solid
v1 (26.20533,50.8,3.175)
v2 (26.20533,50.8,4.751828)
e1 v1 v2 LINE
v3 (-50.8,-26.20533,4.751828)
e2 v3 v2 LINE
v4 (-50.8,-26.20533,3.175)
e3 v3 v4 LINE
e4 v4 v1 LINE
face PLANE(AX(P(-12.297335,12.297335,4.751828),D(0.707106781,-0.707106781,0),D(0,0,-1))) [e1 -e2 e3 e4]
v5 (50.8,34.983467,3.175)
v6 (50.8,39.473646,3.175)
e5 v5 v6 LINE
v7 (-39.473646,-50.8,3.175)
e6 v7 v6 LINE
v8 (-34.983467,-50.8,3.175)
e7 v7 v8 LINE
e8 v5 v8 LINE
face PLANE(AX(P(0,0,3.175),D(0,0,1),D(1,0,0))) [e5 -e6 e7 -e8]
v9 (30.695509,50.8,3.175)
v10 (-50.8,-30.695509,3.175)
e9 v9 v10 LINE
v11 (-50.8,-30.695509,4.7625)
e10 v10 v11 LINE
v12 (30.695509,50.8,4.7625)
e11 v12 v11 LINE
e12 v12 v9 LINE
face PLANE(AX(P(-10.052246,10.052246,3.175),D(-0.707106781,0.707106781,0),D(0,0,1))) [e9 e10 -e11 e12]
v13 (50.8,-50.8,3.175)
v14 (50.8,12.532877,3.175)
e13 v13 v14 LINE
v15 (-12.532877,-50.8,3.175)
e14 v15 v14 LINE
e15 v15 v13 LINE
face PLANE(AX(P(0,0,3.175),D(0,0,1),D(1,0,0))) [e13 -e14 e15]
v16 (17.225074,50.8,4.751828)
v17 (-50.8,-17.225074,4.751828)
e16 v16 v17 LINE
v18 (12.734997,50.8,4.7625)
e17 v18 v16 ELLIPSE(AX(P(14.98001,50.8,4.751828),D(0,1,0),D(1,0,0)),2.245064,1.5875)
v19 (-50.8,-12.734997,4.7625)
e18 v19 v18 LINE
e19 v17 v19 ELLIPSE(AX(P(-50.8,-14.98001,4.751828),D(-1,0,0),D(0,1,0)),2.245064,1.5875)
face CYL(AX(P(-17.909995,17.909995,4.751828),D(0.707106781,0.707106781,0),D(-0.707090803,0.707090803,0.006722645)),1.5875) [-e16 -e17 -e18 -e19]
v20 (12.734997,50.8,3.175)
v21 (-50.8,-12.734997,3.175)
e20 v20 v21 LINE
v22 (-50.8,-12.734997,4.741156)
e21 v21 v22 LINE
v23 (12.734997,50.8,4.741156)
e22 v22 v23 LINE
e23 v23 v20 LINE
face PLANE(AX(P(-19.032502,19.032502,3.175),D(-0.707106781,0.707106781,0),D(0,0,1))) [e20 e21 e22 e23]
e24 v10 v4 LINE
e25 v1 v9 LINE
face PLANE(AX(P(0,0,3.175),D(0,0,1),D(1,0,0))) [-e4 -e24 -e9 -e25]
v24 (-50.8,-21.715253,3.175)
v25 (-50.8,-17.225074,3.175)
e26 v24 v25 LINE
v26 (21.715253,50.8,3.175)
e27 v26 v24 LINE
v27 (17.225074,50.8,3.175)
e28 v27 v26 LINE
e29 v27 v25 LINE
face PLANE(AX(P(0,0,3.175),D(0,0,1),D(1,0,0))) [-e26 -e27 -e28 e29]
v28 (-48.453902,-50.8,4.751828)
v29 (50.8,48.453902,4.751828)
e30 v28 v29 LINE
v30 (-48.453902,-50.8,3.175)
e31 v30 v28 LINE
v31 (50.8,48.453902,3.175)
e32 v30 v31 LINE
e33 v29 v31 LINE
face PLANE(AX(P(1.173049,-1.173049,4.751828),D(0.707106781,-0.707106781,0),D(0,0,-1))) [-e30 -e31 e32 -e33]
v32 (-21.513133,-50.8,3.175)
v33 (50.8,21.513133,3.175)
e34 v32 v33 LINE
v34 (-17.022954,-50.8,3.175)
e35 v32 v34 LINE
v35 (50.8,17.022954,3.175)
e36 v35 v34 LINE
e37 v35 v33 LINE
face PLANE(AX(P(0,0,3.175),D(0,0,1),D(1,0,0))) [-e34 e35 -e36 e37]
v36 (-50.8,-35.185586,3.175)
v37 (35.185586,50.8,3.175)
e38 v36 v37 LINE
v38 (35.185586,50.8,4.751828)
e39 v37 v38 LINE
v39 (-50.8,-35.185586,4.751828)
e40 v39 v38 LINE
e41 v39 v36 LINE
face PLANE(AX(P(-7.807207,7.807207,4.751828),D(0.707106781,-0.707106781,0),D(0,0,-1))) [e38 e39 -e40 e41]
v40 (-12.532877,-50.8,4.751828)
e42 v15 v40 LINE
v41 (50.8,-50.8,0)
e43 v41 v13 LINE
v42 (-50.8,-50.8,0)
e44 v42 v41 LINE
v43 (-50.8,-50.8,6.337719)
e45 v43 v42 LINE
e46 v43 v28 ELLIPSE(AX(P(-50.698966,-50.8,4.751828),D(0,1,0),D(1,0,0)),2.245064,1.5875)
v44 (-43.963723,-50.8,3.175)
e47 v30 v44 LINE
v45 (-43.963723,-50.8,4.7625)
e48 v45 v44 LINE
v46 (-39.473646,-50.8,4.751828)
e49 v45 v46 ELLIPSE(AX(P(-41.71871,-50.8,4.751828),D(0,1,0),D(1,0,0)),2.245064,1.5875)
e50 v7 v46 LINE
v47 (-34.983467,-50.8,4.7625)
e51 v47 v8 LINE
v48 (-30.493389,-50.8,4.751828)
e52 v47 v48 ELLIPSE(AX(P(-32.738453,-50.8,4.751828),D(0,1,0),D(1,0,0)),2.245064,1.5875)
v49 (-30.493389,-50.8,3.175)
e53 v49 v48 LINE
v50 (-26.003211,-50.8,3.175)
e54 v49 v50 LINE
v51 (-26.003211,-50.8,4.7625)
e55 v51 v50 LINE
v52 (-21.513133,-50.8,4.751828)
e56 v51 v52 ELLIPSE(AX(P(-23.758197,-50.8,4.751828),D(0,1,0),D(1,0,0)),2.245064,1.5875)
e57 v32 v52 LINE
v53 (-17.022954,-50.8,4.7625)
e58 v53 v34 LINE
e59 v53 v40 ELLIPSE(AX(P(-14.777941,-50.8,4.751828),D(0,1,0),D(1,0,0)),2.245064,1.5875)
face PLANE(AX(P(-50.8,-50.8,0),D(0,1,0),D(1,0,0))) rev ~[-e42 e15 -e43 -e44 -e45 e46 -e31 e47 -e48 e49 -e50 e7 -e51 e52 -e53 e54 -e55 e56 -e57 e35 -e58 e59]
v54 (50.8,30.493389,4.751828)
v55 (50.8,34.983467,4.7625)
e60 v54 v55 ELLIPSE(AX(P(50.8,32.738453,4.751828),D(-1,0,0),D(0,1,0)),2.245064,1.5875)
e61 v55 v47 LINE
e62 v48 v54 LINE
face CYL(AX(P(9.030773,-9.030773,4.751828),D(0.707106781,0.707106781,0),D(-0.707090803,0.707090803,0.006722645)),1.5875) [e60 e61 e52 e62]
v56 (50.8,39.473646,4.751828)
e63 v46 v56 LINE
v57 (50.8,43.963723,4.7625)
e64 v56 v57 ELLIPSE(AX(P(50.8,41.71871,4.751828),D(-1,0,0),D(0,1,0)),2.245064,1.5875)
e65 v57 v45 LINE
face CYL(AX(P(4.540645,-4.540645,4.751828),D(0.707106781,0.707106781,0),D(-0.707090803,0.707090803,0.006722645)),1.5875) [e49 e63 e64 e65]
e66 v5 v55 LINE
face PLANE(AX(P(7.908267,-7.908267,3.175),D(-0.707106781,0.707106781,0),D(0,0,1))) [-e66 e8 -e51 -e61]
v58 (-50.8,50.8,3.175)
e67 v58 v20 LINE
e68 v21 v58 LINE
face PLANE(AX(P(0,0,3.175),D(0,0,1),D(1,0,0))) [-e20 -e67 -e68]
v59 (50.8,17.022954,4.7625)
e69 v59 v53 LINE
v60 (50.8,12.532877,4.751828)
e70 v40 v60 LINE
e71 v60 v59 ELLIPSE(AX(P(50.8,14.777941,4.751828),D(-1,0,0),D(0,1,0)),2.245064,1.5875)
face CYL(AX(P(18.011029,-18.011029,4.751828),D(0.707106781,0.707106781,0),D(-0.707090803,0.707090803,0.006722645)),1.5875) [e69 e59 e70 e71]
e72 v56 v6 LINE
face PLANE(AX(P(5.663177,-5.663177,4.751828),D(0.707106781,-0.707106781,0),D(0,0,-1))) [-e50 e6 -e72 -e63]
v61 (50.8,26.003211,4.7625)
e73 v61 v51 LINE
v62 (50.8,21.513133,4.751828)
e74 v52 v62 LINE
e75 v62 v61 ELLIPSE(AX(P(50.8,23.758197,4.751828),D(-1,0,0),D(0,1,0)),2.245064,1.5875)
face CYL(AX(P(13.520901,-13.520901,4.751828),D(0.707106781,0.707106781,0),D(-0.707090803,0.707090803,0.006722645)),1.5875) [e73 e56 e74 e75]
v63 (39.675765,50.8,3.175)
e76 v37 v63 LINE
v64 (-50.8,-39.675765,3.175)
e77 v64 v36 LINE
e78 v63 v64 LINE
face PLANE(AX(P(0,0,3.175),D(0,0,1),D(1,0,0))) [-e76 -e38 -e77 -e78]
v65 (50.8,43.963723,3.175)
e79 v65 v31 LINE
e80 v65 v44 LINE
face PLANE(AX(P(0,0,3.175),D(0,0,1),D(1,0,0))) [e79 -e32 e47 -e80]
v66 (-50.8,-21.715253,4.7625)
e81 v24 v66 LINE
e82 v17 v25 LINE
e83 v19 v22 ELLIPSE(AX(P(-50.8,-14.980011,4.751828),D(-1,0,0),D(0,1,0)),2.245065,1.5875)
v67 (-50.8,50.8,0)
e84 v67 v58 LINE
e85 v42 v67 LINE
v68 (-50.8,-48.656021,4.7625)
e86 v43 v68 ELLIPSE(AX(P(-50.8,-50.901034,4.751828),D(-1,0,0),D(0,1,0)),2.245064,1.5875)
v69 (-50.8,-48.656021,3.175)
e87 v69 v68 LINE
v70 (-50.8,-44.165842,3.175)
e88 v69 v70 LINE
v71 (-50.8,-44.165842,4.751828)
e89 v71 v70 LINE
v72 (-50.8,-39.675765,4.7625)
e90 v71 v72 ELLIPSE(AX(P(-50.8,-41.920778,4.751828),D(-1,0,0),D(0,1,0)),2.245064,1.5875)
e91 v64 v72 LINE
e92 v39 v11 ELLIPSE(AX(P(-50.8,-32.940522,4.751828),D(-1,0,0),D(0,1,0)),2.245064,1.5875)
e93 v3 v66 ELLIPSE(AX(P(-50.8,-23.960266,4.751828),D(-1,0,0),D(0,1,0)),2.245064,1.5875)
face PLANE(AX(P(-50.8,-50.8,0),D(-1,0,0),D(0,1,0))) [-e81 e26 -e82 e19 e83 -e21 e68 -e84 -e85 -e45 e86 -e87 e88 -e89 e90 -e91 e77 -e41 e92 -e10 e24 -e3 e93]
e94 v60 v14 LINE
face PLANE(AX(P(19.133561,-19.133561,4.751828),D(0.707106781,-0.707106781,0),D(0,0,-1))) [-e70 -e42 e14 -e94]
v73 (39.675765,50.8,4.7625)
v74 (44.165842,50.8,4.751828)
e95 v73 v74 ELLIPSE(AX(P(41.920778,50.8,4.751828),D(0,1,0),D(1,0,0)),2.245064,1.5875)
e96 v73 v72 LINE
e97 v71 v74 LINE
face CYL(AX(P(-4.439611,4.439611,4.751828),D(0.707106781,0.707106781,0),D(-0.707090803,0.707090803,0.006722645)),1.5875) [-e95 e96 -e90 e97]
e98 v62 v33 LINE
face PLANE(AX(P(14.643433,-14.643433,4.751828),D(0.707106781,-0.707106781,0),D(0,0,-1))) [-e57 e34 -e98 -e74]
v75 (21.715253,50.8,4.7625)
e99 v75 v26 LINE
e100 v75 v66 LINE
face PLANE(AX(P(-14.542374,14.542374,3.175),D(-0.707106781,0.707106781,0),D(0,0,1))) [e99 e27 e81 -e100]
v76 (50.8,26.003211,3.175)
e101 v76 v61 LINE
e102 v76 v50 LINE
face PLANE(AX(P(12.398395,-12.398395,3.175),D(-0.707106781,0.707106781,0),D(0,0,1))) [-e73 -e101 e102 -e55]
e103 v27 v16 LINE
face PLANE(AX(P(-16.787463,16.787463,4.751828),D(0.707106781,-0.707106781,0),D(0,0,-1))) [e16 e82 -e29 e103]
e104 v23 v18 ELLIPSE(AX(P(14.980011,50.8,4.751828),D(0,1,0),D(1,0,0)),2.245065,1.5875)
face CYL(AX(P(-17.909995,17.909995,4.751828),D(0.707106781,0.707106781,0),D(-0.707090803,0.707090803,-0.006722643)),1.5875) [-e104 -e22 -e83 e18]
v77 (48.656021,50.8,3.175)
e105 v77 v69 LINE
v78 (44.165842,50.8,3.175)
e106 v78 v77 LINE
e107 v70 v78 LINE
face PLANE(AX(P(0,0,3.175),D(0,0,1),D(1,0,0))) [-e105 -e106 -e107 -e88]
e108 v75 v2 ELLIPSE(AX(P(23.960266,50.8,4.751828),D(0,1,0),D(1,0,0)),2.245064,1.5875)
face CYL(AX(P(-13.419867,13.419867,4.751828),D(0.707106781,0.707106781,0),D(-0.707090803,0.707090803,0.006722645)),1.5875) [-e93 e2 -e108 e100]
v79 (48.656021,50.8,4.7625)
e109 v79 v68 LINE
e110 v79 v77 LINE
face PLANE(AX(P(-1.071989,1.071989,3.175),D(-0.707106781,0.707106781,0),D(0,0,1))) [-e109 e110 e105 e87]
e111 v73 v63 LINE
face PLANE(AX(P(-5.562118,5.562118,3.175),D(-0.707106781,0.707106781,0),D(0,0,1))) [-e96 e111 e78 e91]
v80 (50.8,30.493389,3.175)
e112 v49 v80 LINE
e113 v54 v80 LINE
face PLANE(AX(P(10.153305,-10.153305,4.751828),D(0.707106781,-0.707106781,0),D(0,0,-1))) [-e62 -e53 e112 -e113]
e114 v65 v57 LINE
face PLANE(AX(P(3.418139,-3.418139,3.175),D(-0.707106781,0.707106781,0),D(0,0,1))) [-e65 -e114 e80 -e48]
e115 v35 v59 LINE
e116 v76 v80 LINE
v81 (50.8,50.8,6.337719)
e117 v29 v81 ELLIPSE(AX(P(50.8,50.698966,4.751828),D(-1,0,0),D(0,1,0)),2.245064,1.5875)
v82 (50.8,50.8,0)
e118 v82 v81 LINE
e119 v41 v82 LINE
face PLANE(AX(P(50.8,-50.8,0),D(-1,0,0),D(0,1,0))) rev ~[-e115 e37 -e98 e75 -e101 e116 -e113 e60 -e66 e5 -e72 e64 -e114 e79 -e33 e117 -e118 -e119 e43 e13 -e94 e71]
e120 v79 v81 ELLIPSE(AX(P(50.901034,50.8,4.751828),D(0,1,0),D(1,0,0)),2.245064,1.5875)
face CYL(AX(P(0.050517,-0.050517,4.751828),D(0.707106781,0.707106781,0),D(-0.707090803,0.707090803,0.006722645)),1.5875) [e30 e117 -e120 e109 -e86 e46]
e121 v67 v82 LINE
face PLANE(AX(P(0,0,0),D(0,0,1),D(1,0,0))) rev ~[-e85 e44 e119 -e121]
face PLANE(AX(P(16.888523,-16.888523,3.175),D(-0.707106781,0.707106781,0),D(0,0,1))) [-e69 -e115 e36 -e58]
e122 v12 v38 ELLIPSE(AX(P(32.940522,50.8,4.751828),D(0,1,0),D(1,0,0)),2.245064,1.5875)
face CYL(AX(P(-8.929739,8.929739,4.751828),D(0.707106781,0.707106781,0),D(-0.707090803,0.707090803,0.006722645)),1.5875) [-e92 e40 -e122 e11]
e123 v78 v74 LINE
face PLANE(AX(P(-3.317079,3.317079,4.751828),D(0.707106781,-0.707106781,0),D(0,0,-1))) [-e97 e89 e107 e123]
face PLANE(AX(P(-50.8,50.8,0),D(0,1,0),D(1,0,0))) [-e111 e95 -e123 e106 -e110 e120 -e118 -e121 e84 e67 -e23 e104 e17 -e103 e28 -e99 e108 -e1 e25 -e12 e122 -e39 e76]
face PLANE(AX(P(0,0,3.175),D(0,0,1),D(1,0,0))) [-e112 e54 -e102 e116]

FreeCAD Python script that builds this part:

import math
import FreeCAD as App
import Part
import Sketcher
Q = App.Units.Quantity

doc = App.newDocument("Part")
params = doc.addObject("Spreadsheet::Sheet", "Params")
for row, (alias, value) in enumerate([
    ("sketch1_width", "4 in"),
    ("pad1_length", "0.125 in"),
    ("sketch2_radius", "0.0625 in"),
    ("pad2_length", "4 in"),
    ("sketch3_radius", "0.0625 in"),
    ("sketch3_height", "0.0625 in"),
    ("pad3_length", "4.5 in"),
    ("sketch4_radius", "0.0625 in"),
    ("sketch4_height", "0.0625 in"),
    ("pad4_length", "5 in"),
    ("sketch5_radius", "0.0625 in"),
    ("sketch5_height", "0.0625 in"),
    ("pad5_length", "5.5 in"),
    ("sketch6_radius", "0.0625 in"),
    ("sketch6_height", "0.0625 in"),
    ("pad6_length", "6 in"),
    ("sketch7_radius", "0.0625 in"),
    ("sketch7_height", "0.0625 in"),
    ("pad7_length", "5.5 in"),
    ("sketch8_radius", "0.0625 in"),
    ("sketch8_height", "0.0625 in"),
    ("pad8_length", "5 in"),
    ("sketch9_radius", "0.0625 in"),
    ("sketch9_height", "0.0625 in"),
    ("pad9_length", "4.5 in"),
    ("sketch10_radius", "0.0625 in"),
    ("sketch10_height", "0.0625 in"),
    ("pad10_length", "4 in"),
    ("sketch11_width", "4 in"),
    ("pocket1_length", "0.5 in"),
], start=1):
    params.set(f"A{row}", alias)
    params.set(f"B{row}", "=" + value)
    params.setAlias(f"B{row}", alias)

body = doc.addObject("PartDesign::Body", "Body")

# Sketch on XY plane
sketch1 = body.newObject("Sketcher::SketchObject", "Sketch")
sketch1.AttachmentSupport = (doc.getObject("XY_Plane"), [""])
sketch1.MapMode = "FlatFace"
sketch1.addGeometry(Part.LineSegment(App.Vector(-51, 51, 0), App.Vector(-51, -51, 0)), False)
sketch1.addGeometry(Part.LineSegment(App.Vector(-51, -51, 0), App.Vector(51, -51, 0)), False)
sketch1.addGeometry(Part.LineSegment(App.Vector(51, -51, 0), App.Vector(51, 51, 0)), False)
sketch1.addGeometry(Part.LineSegment(App.Vector(51, 51, 0), App.Vector(-51, 51, 0)), False)
sketch1.addConstraint(Sketcher.Constraint("Coincident", 0, 2, 1, 1))
sketch1.addConstraint(Sketcher.Constraint("Coincident", 1, 2, 2, 1))
sketch1.addConstraint(Sketcher.Constraint("Coincident", 2, 2, 3, 1))
sketch1.addConstraint(Sketcher.Constraint("Coincident", 3, 2, 0, 1))
sketch1.addConstraint(Sketcher.Constraint("Vertical", 0))
sketch1.addConstraint(Sketcher.Constraint("Horizontal", 1))
sketch1.addConstraint(Sketcher.Constraint("Vertical", 2))
sketch1.addConstraint(Sketcher.Constraint("Horizontal", 3))
sketch1.addConstraint(Sketcher.Constraint("Symmetric", 0, 2, 2, 2, -1, 1))
sketch1.addConstraint(Sketcher.Constraint("Equal", 3, 0))
sketch1.addConstraint(Sketcher.Constraint("DistanceX", 1, 1, 1, 2, Q("4 in")))
sketch1.setExpression("Constraints[10]", "Params.sketch1_width")
pad1 = body.newObject("PartDesign::Pad", "Pad")
pad1.Profile = sketch1
pad1.setExpression("Length", "Params.pad1_length")

# Sketch on an angled plane
sketch2 = body.newObject("Sketcher::SketchObject", "Sketch001")
sketch2.Placement = App.Placement(App.Vector(0, 0, 0), App.Rotation(App.Vector(-0.707106781, 0.707106781, 0), App.Vector(0, 0, 0.999999999), App.Vector(0.707106781, 0.707106781, 0), "ZXY"))
sketch2.addGeometry(Part.LineSegment(App.Vector(26.916, 3.175, 0), App.Vector(26.916, 4.741, 0)), False)
sketch2.addGeometry(Part.ArcOfCircle(Part.Circle(App.Vector(25.329, 4.752, 0), App.Vector(0, 0, 1), 1.588), math.radians(-0.39), math.radians(0.39)), False)
sketch2.addGeometry(Part.ArcOfCircle(Part.Circle(App.Vector(25.329, 4.752, 0), App.Vector(0, 0, 1), 1.587), math.radians(0), math.radians(180)), False)
sketch2.addGeometry(Part.LineSegment(App.Vector(23.741, 4.752, 0), App.Vector(23.741, 3.175, 0)), False)
sketch2.addGeometry(Part.LineSegment(App.Vector(23.741, 3.175, 0), App.Vector(26.916, 3.175, 0)), False)
sketch2.addConstraint(Sketcher.Constraint("Coincident", 0, 2, 1, 1))
sketch2.addConstraint(Sketcher.Constraint("Tangent", 1, 2, 2, 1))
sketch2.addConstraint(Sketcher.Constraint("Tangent", 2, 2, 3, 1))
sketch2.addConstraint(Sketcher.Constraint("Coincident", 3, 2, 4, 1))
sketch2.addConstraint(Sketcher.Constraint("Coincident", 4, 2, 0, 1))
sketch2.addConstraint(Sketcher.Constraint("Vertical", 0))
sketch2.addConstraint(Sketcher.Constraint("Vertical", 3))
sketch2.addConstraint(Sketcher.Constraint("Horizontal", 4))
sketch2.addConstraint(Sketcher.Constraint("Equal", 1, 2))
sketch2.addConstraint(Sketcher.Constraint("Vertical", 0, 2, 1, 2))
sketch2.addConstraint(Sketcher.Constraint("Radius", 1, Q("0.0625 in")))
sketch2.addConstraint(Sketcher.Constraint("DistanceY", -1, 1, 1, 2, Q("0.1875 in")))
sketch2.addConstraint(Sketcher.Constraint("DistanceY", -1, 1, 3, 2, Q("0.125 in")))
sketch2.addConstraint(Sketcher.Constraint("DistanceY", 0, 1, 0, 2, Q("1.566156 mm")))
sketch2.addConstraint(Sketcher.Constraint("DistanceX", -1, 1, 1, 3, Q("25.328557 mm")))
sketch2.setExpression("Constraints[10]", "Params.sketch2_radius")
pad2 = body.newObject("PartDesign::Pad", "Pad001")
pad2.Profile = sketch2
pad2.setExpression("Length", "Params.pad2_length")
pad2.Midplane = True

# Sketch on an angled plane
sketch3 = body.newObject("Sketcher::SketchObject", "Sketch002")
sketch3.Placement = App.Placement(App.Vector(0, 0, 0), App.Rotation(App.Vector(-0.707106781, 0.707106781, 0), App.Vector(0, 0, 0.999999999), App.Vector(0.707106781, 0.707106781, 0), "ZXY"))
sketch3.addGeometry(Part.ArcOfCircle(Part.Circle(App.Vector(18.978558, 4.751828, 0), App.Vector(0, 0, 1), 1.5875), math.radians(0.385182), math.radians(180)), False)
sketch3.addGeometry(Part.LineSegment(App.Vector(17.391058, 4.751828, 0), App.Vector(17.391058, 3.175, 0)), False)
sketch3.addGeometry(Part.LineSegment(App.Vector(17.391058, 3.175, 0), App.Vector(20.566022, 3.175, 0)), False)
sketch3.addGeometry(Part.LineSegment(App.Vector(20.566022, 3.175, 0), App.Vector(20.566022, 4.7625, 0)), False)
sketch3.addConstraint(Sketcher.Constraint("Tangent", 0, 2, 1, 1))
sketch3.addConstraint(Sketcher.Constraint("Coincident", 1, 2, 2, 1))
sketch3.addConstraint(Sketcher.Constraint("Coincident", 2, 2, 3, 1))
sketch3.addConstraint(Sketcher.Constraint("Coincident", 3, 2, 0, 1))
sketch3.addConstraint(Sketcher.Constraint("Vertical", 1))
sketch3.addConstraint(Sketcher.Constraint("Horizontal", 2))
sketch3.addConstraint(Sketcher.Constraint("Vertical", 3))
sketch3.addConstraint(Sketcher.Constraint("Radius", 0, Q("0.0625 in")))
sketch3.addConstraint(Sketcher.Constraint("DistanceY", 3, 1, 3, 2, Q("0.0625 in")))
sketch3.addConstraint(Sketcher.Constraint("DistanceY", -1, 1, 1, 2, Q("0.125 in")))
sketch3.addConstraint(Sketcher.Constraint("DistanceX", 2, 1, 2, 2, Q("3.174964 mm")))
sketch3.addConstraint(Sketcher.Constraint("DistanceX", -1, 1, 0, 3, Q("18.978558 mm")))
sketch3.setExpression("Constraints[7]", "Params.sketch3_radius")
sketch3.setExpression("Constraints[8]", "Params.sketch3_height")
pad3 = body.newObject("PartDesign::Pad", "Pad002")
pad3.Profile = sketch3
pad3.setExpression("Length", "Params.pad3_length")
pad3.Midplane = True

# Sketch on an angled plane
sketch4 = body.newObject("Sketcher::SketchObject", "Sketch003")
sketch4.Placement = App.Placement(App.Vector(0, 0, 0), App.Rotation(App.Vector(-0.707106781, 0.707106781, 0), App.Vector(0, 0, 0.999999999), App.Vector(0.707106781, 0.707106781, 0), "ZXY"))
sketch4.addGeometry(Part.ArcOfCircle(Part.Circle(App.Vector(12.628558, 4.751828, 0), App.Vector(0, 0, 1), 1.5875), math.radians(0.385182), math.radians(180)), False)
sketch4.addGeometry(Part.LineSegment(App.Vector(11.041058, 4.751828, 0), App.Vector(11.041058, 3.175, 0)), False)
sketch4.addGeometry(Part.LineSegment(App.Vector(11.041058, 3.175, 0), App.Vector(14.216022, 3.175, 0)), False)
sketch4.addGeometry(Part.LineSegment(App.Vector(14.216022, 3.175, 0), App.Vector(14.216022, 4.7625, 0)), False)
sketch4.addConstraint(Sketcher.Constraint("Tangent", 0, 2, 1, 1))
sketch4.addConstraint(Sketcher.Constraint("Coincident", 1, 2, 2, 1))
sketch4.addConstraint(Sketcher.Constraint("Coincident", 2, 2, 3, 1))
sketch4.addConstraint(Sketcher.Constraint("Coincident", 3, 2, 0, 1))
sketch4.addConstraint(Sketcher.Constraint("Vertical", 1))
sketch4.addConstraint(Sketcher.Constraint("Horizontal", 2))
sketch4.addConstraint(Sketcher.Constraint("Vertical", 3))
sketch4.addConstraint(Sketcher.Constraint("Radius", 0, Q("0.0625 in")))
sketch4.addConstraint(Sketcher.Constraint("DistanceY", 3, 1, 3, 2, Q("0.0625 in")))
sketch4.addConstraint(Sketcher.Constraint("DistanceY", -1, 1, 1, 2, Q("0.125 in")))
sketch4.addConstraint(Sketcher.Constraint("DistanceX", 2, 1, 2, 2, Q("3.174964 mm")))
sketch4.addConstraint(Sketcher.Constraint("DistanceX", -1, 1, 0, 3, Q("12.628558 mm")))
sketch4.setExpression("Constraints[7]", "Params.sketch4_radius")
sketch4.setExpression("Constraints[8]", "Params.sketch4_height")
pad4 = body.newObject("PartDesign::Pad", "Pad003")
pad4.Profile = sketch4
pad4.setExpression("Length", "Params.pad4_length")
pad4.Midplane = True

# Sketch on an angled plane
sketch5 = body.newObject("Sketcher::SketchObject", "Sketch004")
sketch5.Placement = App.Placement(App.Vector(0, 0, 0), App.Rotation(App.Vector(-0.707106781, 0.707106781, 0), App.Vector(0, 0, 0.999999999), App.Vector(0.707106781, 0.707106781, 0), "ZXY"))
sketch5.addGeometry(Part.ArcOfCircle(Part.Circle(App.Vector(6.278558, 4.751828, 0), App.Vector(0, 0, 1), 1.5875), math.radians(0.385182), math.radians(180)), False)
sketch5.addGeometry(Part.LineSegment(App.Vector(4.691058, 4.751828, 0), App.Vector(4.691058, 3.175, 0)), False)
sketch5.addGeometry(Part.LineSegment(App.Vector(4.691058, 3.175, 0), App.Vector(7.866022, 3.175, 0)), False)
sketch5.addGeometry(Part.LineSegment(App.Vector(7.866022, 3.175, 0), App.Vector(7.866022, 4.7625, 0)), False)
sketch5.addConstraint(Sketcher.Constraint("Tangent", 0, 2, 1, 1))
sketch5.addConstraint(Sketcher.Constraint("Coincident", 1, 2, 2, 1))
sketch5.addConstraint(Sketcher.Constraint("Coincident", 2, 2, 3, 1))
sketch5.addConstraint(Sketcher.Constraint("Coincident", 3, 2, 0, 1))
sketch5.addConstraint(Sketcher.Constraint("Vertical", 1))
sketch5.addConstraint(Sketcher.Constraint("Horizontal", 2))
sketch5.addConstraint(Sketcher.Constraint("Vertical", 3))
sketch5.addConstraint(Sketcher.Constraint("Radius", 0, Q("0.0625 in")))
sketch5.addConstraint(Sketcher.Constraint("DistanceY", 3, 1, 3, 2, Q("0.0625 in")))
sketch5.addConstraint(Sketcher.Constraint("DistanceY", -1, 1, 1, 2, Q("0.125 in")))
sketch5.addConstraint(Sketcher.Constraint("DistanceX", 2, 1, 2, 2, Q("3.174964 mm")))
sketch5.addConstraint(Sketcher.Constraint("DistanceX", -1, 1, 0, 3, Q("6.278558 mm")))
sketch5.setExpression("Constraints[7]", "Params.sketch5_radius")
sketch5.setExpression("Constraints[8]", "Params.sketch5_height")
pad5 = body.newObject("PartDesign::Pad", "Pad004")
pad5.Profile = sketch5
pad5.setExpression("Length", "Params.pad5_length")
pad5.Midplane = True

# Sketch on an angled plane
sketch6 = body.newObject("Sketcher::SketchObject", "Sketch005")
sketch6.Placement = App.Placement(App.Vector(0, 0, 0), App.Rotation(App.Vector(-0.707106781, 0.707106781, 0), App.Vector(0, 0, 0.999999999), App.Vector(0.707106781, 0.707106781, 0), "ZXY"))
sketch6.addGeometry(Part.ArcOfCircle(Part.Circle(App.Vector(-0.071442, 4.751828, 0), App.Vector(0, 0, 1), 1.5875), math.radians(0.385182), math.radians(180)), False)
sketch6.addGeometry(Part.LineSegment(App.Vector(-1.658942, 4.751828, 0), App.Vector(-1.658942, 3.175, 0)), False)
sketch6.addGeometry(Part.LineSegment(App.Vector(-1.658942, 3.175, 0), App.Vector(1.516022, 3.175, 0)), False)
sketch6.addGeometry(Part.LineSegment(App.Vector(1.516022, 3.175, 0), App.Vector(1.516022, 4.7625, 0)), False)
sketch6.addConstraint(Sketcher.Constraint("Tangent", 0, 2, 1, 1))
sketch6.addConstraint(Sketcher.Constraint("Coincident", 1, 2, 2, 1))
sketch6.addConstraint(Sketcher.Constraint("Coincident", 2, 2, 3, 1))
sketch6.addConstraint(Sketcher.Constraint("Coincident", 3, 2, 0, 1))
sketch6.addConstraint(Sketcher.Constraint("Vertical", 1))
sketch6.addConstraint(Sketcher.Constraint("Horizontal", 2))
sketch6.addConstraint(Sketcher.Constraint("Vertical", 3))
sketch6.addConstraint(Sketcher.Constraint("Radius", 0, Q("0.0625 in")))
sketch6.addConstraint(Sketcher.Constraint("DistanceY", 3, 1, 3, 2, Q("0.0625 in")))
sketch6.addConstraint(Sketcher.Constraint("DistanceY", -1, 1, 1, 2, Q("0.125 in")))
sketch6.addConstraint(Sketcher.Constraint("DistanceX", 2, 1, 2, 2, Q("3.174964 mm")))
sketch6.addConstraint(Sketcher.Constraint("DistanceX", 0, 3, -1, 1, Q("0.071442 mm")))
sketch6.setExpression("Constraints[7]", "Params.sketch6_radius")
sketch6.setExpression("Constraints[8]", "Params.sketch6_height")
pad6 = body.newObject("PartDesign::Pad", "Pad005")
pad6.Profile = sketch6
pad6.setExpression("Length", "Params.pad6_length")
pad6.Midplane = True

# Sketch on an angled plane
sketch7 = body.newObject("Sketcher::SketchObject", "Sketch006")
sketch7.Placement = App.Placement(App.Vector(0, 0, 0), App.Rotation(App.Vector(-0.707106781, 0.707106781, 0), App.Vector(0, 0, 0.999999999), App.Vector(0.707106781, 0.707106781, 0), "ZXY"))
sketch7.addGeometry(Part.ArcOfCircle(Part.Circle(App.Vector(-6.421442, 4.751828, 0), App.Vector(0, 0, 1), 1.5875), math.radians(0.385182), math.radians(180)), False)
sketch7.addGeometry(Part.LineSegment(App.Vector(-8.008942, 4.751828, 0), App.Vector(-8.008942, 3.175, 0)), False)
sketch7.addGeometry(Part.LineSegment(App.Vector(-8.008942, 3.175, 0), App.Vector(-4.833978, 3.175, 0)), False)
sketch7.addGeometry(Part.LineSegment(App.Vector(-4.833978, 3.175, 0), App.Vector(-4.833978, 4.7625, 0)), False)
sketch7.addConstraint(Sketcher.Constraint("Tangent", 0, 2, 1, 1))
sketch7.addConstraint(Sketcher.Constraint("Coincident", 1, 2, 2, 1))
sketch7.addConstraint(Sketcher.Constraint("Coincident", 2, 2, 3, 1))
sketch7.addConstraint(Sketcher.Constraint("Coincident", 3, 2, 0, 1))
sketch7.addConstraint(Sketcher.Constraint("Vertical", 1))
sketch7.addConstraint(Sketcher.Constraint("Horizontal", 2))
sketch7.addConstraint(Sketcher.Constraint("Vertical", 3))
sketch7.addConstraint(Sketcher.Constraint("Radius", 0, Q("0.0625 in")))
sketch7.addConstraint(Sketcher.Constraint("DistanceY", 3, 1, 3, 2, Q("0.0625 in")))
sketch7.addConstraint(Sketcher.Constraint("DistanceY", -1, 1, 1, 2, Q("0.125 in")))
sketch7.addConstraint(Sketcher.Constraint("DistanceX", 2, 1, 2, 2, Q("3.174964 mm")))
sketch7.addConstraint(Sketcher.Constraint("DistanceX", 0, 3, -1, 1, Q("6.421442 mm")))
sketch7.setExpression("Constraints[7]", "Params.sketch7_radius")
sketch7.setExpression("Constraints[8]", "Params.sketch7_height")
pad7 = body.newObject("PartDesign::Pad", "Pad006")
pad7.Profile = sketch7
pad7.setExpression("Length", "Params.pad7_length")
pad7.Midplane = True

# Sketch on an angled plane
sketch8 = body.newObject("Sketcher::SketchObject", "Sketch007")
sketch8.Placement = App.Placement(App.Vector(0, 0, 0), App.Rotation(App.Vector(-0.707106781, 0.707106781, 0), App.Vector(0, 0, 0.999999999), App.Vector(0.707106781, 0.707106781, 0), "ZXY"))
sketch8.addGeometry(Part.ArcOfCircle(Part.Circle(App.Vector(-12.771442, 4.751828, 0), App.Vector(0, 0, 1), 1.5875), math.radians(0.385182), math.radians(180)), False)
sketch8.addGeometry(Part.LineSegment(App.Vector(-14.358942, 4.751828, 0), App.Vector(-14.358942, 3.175, 0)), False)
sketch8.addGeometry(Part.LineSegment(App.Vector(-14.358942, 3.175, 0), App.Vector(-11.183978, 3.175, 0)), False)
sketch8.addGeometry(Part.LineSegment(App.Vector(-11.183978, 3.175, 0), App.Vector(-11.183978, 4.7625, 0)), False)
sketch8.addConstraint(Sketcher.Constraint("Tangent", 0, 2, 1, 1))
sketch8.addConstraint(Sketcher.Constraint("Coincident", 1, 2, 2, 1))
sketch8.addConstraint(Sketcher.Constraint("Coincident", 2, 2, 3, 1))
sketch8.addConstraint(Sketcher.Constraint("Coincident", 3, 2, 0, 1))
sketch8.addConstraint(Sketcher.Constraint("Vertical", 1))
sketch8.addConstraint(Sketcher.Constraint("Horizontal", 2))
sketch8.addConstraint(Sketcher.Constraint("Vertical", 3))
sketch8.addConstraint(Sketcher.Constraint("Radius", 0, Q("0.0625 in")))
sketch8.addConstraint(Sketcher.Constraint("DistanceY", 3, 1, 3, 2, Q("0.0625 in")))
sketch8.addConstraint(Sketcher.Constraint("DistanceY", -1, 1, 1, 2, Q("0.125 in")))
sketch8.addConstraint(Sketcher.Constraint("DistanceX", 2, 1, 2, 2, Q("3.174964 mm")))
sketch8.addConstraint(Sketcher.Constraint("DistanceX", 0, 3, -1, 1, Q("12.771442 mm")))
sketch8.setExpression("Constraints[7]", "Params.sketch8_radius")
sketch8.setExpression("Constraints[8]", "Params.sketch8_height")
pad8 = body.newObject("PartDesign::Pad", "Pad007")
pad8.Profile = sketch8
pad8.setExpression("Length", "Params.pad8_length")
pad8.Midplane = True

# Sketch on an angled plane
sketch9 = body.newObject("Sketcher::SketchObject", "Sketch008")
sketch9.Placement = App.Placement(App.Vector(0, 0, 0), App.Rotation(App.Vector(-0.707106781, 0.707106781, 0), App.Vector(0, 0, 0.999999999), App.Vector(0.707106781, 0.707106781, 0), "ZXY"))
sketch9.addGeometry(Part.ArcOfCircle(Part.Circle(App.Vector(-19.121442, 4.751828, 0), App.Vector(0, 0, 1), 1.5875), math.radians(0.385182), math.radians(180)), False)
sketch9.addGeometry(Part.LineSegment(App.Vector(-20.708942, 4.751828, 0), App.Vector(-20.708942, 3.175, 0)), False)
sketch9.addGeometry(Part.LineSegment(App.Vector(-20.708942, 3.175, 0), App.Vector(-17.533978, 3.175, 0)), False)
sketch9.addGeometry(Part.LineSegment(App.Vector(-17.533978, 3.175, 0), App.Vector(-17.533978, 4.7625, 0)), False)
sketch9.addConstraint(Sketcher.Constraint("Tangent", 0, 2, 1, 1))
sketch9.addConstraint(Sketcher.Constraint("Coincident", 1, 2, 2, 1))
sketch9.addConstraint(Sketcher.Constraint("Coincident", 2, 2, 3, 1))
sketch9.addConstraint(Sketcher.Constraint("Coincident", 3, 2, 0, 1))
sketch9.addConstraint(Sketcher.Constraint("Vertical", 1))
sketch9.addConstraint(Sketcher.Constraint("Horizontal", 2))
sketch9.addConstraint(Sketcher.Constraint("Vertical", 3))
sketch9.addConstraint(Sketcher.Constraint("Radius", 0, Q("0.0625 in")))
sketch9.addConstraint(Sketcher.Constraint("DistanceY", 3, 1, 3, 2, Q("0.0625 in")))
sketch9.addConstraint(Sketcher.Constraint("DistanceY", -1, 1, 1, 2, Q("0.125 in")))
sketch9.addConstraint(Sketcher.Constraint("DistanceX", 2, 1, 2, 2, Q("3.174964 mm")))
sketch9.addConstraint(Sketcher.Constraint("DistanceX", 0, 3, -1, 1, Q("19.121442 mm")))
sketch9.setExpression("Constraints[7]", "Params.sketch9_radius")
sketch9.setExpression("Constraints[8]", "Params.sketch9_height")
pad9 = body.newObject("PartDesign::Pad", "Pad008")
pad9.Profile = sketch9
pad9.setExpression("Length", "Params.pad9_length")
pad9.Midplane = True

# Sketch on an angled plane
sketch10 = body.newObject("Sketcher::SketchObject", "Sketch009")
sketch10.Placement = App.Placement(App.Vector(0, 0, 0), App.Rotation(App.Vector(-0.707106781, 0.707106781, 0), App.Vector(0, 0, 0.999999999), App.Vector(0.707106781, 0.707106781, 0), "ZXY"))
sketch10.addGeometry(Part.ArcOfCircle(Part.Circle(App.Vector(-25.471442, 4.751828, 0), App.Vector(0, 0, 1), 1.5875), math.radians(0.385182), math.radians(180)), False)
sketch10.addGeometry(Part.LineSegment(App.Vector(-27.058942, 4.751828, 0), App.Vector(-27.058942, 3.175, 0)), False)
sketch10.addGeometry(Part.LineSegment(App.Vector(-27.058942, 3.175, 0), App.Vector(-23.883978, 3.175, 0)), False)
sketch10.addGeometry(Part.LineSegment(App.Vector(-23.883978, 3.175, 0), App.Vector(-23.883978, 4.7625, 0)), False)
sketch10.addConstraint(Sketcher.Constraint("Tangent", 0, 2, 1, 1))
sketch10.addConstraint(Sketcher.Constraint("Coincident", 1, 2, 2, 1))
sketch10.addConstraint(Sketcher.Constraint("Coincident", 2, 2, 3, 1))
sketch10.addConstraint(Sketcher.Constraint("Coincident", 3, 2, 0, 1))
sketch10.addConstraint(Sketcher.Constraint("Vertical", 1))
sketch10.addConstraint(Sketcher.Constraint("Horizontal", 2))
sketch10.addConstraint(Sketcher.Constraint("Vertical", 3))
sketch10.addConstraint(Sketcher.Constraint("Radius", 0, Q("0.0625 in")))
sketch10.addConstraint(Sketcher.Constraint("DistanceY", 3, 1, 3, 2, Q("0.0625 in")))
sketch10.addConstraint(Sketcher.Constraint("DistanceY", -1, 1, 1, 2, Q("0.125 in")))
sketch10.addConstraint(Sketcher.Constraint("DistanceX", 2, 1, 2, 2, Q("3.174964 mm")))
sketch10.addConstraint(Sketcher.Constraint("DistanceX", 0, 3, -1, 1, Q("25.471442 mm")))
sketch10.setExpression("Constraints[7]", "Params.sketch10_radius")
sketch10.setExpression("Constraints[8]", "Params.sketch10_height")
pad10 = body.newObject("PartDesign::Pad", "Pad009")
pad10.Profile = sketch10
pad10.setExpression("Length", "Params.pad10_length")
pad10.Midplane = True

# Sketch on XY plane
sketch11 = body.newObject("Sketcher::SketchObject", "Sketch010")
sketch11.AttachmentSupport = (doc.getObject("XY_Plane"), [""])
sketch11.MapMode = "FlatFace"
sketch11.addGeometry(Part.LineSegment(App.Vector(-62, 66, 0), App.Vector(-62, -66, 0)), False)
sketch11.addGeometry(Part.LineSegment(App.Vector(-62, -66, 0), App.Vector(64, -66, 0)), False)
sketch11.addGeometry(Part.LineSegment(App.Vector(64, -66, 0), App.Vector(64, 66, 0)), False)
sketch11.addGeometry(Part.LineSegment(App.Vector(64, 66, 0), App.Vector(-62, 66, 0)), False)
sketch11.addGeometry(Part.LineSegment(App.Vector(51, -51, 0), App.Vector(-51, -51, 0)), False)
sketch11.addGeometry(Part.LineSegment(App.Vector(-51, -51, 0), App.Vector(-51, 51, 0)), False)
sketch11.addGeometry(Part.LineSegment(App.Vector(-51, 51, 0), App.Vector(51, 51, 0)), False)
sketch11.addGeometry(Part.LineSegment(App.Vector(51, 51, 0), App.Vector(51, -51, 0)), False)
sketch11.addConstraint(Sketcher.Constraint("Coincident", 0, 2, 1, 1))
sketch11.addConstraint(Sketcher.Constraint("Coincident", 1, 2, 2, 1))
sketch11.addConstraint(Sketcher.Constraint("Coincident", 2, 2, 3, 1))
sketch11.addConstraint(Sketcher.Constraint("Coincident", 3, 2, 0, 1))
sketch11.addConstraint(Sketcher.Constraint("Coincident", 4, 2, 5, 1))
sketch11.addConstraint(Sketcher.Constraint("Coincident", 5, 2, 6, 1))
sketch11.addConstraint(Sketcher.Constraint("Coincident", 6, 2, 7, 1))
sketch11.addConstraint(Sketcher.Constraint("Coincident", 7, 2, 4, 1))
sketch11.addConstraint(Sketcher.Constraint("Vertical", 0))
sketch11.addConstraint(Sketcher.Constraint("Horizontal", 1))
sketch11.addConstraint(Sketcher.Constraint("Vertical", 2))
sketch11.addConstraint(Sketcher.Constraint("Horizontal", 3))
sketch11.addConstraint(Sketcher.Constraint("Horizontal", 4))
sketch11.addConstraint(Sketcher.Constraint("Vertical", 5))
sketch11.addConstraint(Sketcher.Constraint("Horizontal", 6))
sketch11.addConstraint(Sketcher.Constraint("Vertical", 7))
sketch11.addConstraint(Sketcher.Constraint("Symmetric", 4, 2, 6, 2, -1, 1))
sketch11.addConstraint(Sketcher.Constraint("Equal", 6, 5))
sketch11.addConstraint(Sketcher.Constraint("DistanceX", 4, 2, 4, 1, Q("4 in")))
sketch11.addConstraint(Sketcher.Constraint("DistanceY", 0, 2, 0, 1, Q("131.915599 mm")))
sketch11.addConstraint(Sketcher.Constraint("DistanceX", 1, 1, 1, 2, Q("126.805346 mm")))
sketch11.addConstraint(Sketcher.Constraint("DistanceX", -1, 1, 1, 2, Q("64.369619 mm")))
sketch11.addConstraint(Sketcher.Constraint("DistanceY", 0, 2, -1, 1, Q("66.006385 mm")))
sketch11.setExpression("Constraints[18]", "Params.sketch11_width")
pocket1 = body.newObject("PartDesign::Pocket", "Pocket")
pocket1.Profile = sketch11
pocket1.setExpression("Length", "Params.pocket1_length")
pocket1.Reversed = True

doc.recompute()
